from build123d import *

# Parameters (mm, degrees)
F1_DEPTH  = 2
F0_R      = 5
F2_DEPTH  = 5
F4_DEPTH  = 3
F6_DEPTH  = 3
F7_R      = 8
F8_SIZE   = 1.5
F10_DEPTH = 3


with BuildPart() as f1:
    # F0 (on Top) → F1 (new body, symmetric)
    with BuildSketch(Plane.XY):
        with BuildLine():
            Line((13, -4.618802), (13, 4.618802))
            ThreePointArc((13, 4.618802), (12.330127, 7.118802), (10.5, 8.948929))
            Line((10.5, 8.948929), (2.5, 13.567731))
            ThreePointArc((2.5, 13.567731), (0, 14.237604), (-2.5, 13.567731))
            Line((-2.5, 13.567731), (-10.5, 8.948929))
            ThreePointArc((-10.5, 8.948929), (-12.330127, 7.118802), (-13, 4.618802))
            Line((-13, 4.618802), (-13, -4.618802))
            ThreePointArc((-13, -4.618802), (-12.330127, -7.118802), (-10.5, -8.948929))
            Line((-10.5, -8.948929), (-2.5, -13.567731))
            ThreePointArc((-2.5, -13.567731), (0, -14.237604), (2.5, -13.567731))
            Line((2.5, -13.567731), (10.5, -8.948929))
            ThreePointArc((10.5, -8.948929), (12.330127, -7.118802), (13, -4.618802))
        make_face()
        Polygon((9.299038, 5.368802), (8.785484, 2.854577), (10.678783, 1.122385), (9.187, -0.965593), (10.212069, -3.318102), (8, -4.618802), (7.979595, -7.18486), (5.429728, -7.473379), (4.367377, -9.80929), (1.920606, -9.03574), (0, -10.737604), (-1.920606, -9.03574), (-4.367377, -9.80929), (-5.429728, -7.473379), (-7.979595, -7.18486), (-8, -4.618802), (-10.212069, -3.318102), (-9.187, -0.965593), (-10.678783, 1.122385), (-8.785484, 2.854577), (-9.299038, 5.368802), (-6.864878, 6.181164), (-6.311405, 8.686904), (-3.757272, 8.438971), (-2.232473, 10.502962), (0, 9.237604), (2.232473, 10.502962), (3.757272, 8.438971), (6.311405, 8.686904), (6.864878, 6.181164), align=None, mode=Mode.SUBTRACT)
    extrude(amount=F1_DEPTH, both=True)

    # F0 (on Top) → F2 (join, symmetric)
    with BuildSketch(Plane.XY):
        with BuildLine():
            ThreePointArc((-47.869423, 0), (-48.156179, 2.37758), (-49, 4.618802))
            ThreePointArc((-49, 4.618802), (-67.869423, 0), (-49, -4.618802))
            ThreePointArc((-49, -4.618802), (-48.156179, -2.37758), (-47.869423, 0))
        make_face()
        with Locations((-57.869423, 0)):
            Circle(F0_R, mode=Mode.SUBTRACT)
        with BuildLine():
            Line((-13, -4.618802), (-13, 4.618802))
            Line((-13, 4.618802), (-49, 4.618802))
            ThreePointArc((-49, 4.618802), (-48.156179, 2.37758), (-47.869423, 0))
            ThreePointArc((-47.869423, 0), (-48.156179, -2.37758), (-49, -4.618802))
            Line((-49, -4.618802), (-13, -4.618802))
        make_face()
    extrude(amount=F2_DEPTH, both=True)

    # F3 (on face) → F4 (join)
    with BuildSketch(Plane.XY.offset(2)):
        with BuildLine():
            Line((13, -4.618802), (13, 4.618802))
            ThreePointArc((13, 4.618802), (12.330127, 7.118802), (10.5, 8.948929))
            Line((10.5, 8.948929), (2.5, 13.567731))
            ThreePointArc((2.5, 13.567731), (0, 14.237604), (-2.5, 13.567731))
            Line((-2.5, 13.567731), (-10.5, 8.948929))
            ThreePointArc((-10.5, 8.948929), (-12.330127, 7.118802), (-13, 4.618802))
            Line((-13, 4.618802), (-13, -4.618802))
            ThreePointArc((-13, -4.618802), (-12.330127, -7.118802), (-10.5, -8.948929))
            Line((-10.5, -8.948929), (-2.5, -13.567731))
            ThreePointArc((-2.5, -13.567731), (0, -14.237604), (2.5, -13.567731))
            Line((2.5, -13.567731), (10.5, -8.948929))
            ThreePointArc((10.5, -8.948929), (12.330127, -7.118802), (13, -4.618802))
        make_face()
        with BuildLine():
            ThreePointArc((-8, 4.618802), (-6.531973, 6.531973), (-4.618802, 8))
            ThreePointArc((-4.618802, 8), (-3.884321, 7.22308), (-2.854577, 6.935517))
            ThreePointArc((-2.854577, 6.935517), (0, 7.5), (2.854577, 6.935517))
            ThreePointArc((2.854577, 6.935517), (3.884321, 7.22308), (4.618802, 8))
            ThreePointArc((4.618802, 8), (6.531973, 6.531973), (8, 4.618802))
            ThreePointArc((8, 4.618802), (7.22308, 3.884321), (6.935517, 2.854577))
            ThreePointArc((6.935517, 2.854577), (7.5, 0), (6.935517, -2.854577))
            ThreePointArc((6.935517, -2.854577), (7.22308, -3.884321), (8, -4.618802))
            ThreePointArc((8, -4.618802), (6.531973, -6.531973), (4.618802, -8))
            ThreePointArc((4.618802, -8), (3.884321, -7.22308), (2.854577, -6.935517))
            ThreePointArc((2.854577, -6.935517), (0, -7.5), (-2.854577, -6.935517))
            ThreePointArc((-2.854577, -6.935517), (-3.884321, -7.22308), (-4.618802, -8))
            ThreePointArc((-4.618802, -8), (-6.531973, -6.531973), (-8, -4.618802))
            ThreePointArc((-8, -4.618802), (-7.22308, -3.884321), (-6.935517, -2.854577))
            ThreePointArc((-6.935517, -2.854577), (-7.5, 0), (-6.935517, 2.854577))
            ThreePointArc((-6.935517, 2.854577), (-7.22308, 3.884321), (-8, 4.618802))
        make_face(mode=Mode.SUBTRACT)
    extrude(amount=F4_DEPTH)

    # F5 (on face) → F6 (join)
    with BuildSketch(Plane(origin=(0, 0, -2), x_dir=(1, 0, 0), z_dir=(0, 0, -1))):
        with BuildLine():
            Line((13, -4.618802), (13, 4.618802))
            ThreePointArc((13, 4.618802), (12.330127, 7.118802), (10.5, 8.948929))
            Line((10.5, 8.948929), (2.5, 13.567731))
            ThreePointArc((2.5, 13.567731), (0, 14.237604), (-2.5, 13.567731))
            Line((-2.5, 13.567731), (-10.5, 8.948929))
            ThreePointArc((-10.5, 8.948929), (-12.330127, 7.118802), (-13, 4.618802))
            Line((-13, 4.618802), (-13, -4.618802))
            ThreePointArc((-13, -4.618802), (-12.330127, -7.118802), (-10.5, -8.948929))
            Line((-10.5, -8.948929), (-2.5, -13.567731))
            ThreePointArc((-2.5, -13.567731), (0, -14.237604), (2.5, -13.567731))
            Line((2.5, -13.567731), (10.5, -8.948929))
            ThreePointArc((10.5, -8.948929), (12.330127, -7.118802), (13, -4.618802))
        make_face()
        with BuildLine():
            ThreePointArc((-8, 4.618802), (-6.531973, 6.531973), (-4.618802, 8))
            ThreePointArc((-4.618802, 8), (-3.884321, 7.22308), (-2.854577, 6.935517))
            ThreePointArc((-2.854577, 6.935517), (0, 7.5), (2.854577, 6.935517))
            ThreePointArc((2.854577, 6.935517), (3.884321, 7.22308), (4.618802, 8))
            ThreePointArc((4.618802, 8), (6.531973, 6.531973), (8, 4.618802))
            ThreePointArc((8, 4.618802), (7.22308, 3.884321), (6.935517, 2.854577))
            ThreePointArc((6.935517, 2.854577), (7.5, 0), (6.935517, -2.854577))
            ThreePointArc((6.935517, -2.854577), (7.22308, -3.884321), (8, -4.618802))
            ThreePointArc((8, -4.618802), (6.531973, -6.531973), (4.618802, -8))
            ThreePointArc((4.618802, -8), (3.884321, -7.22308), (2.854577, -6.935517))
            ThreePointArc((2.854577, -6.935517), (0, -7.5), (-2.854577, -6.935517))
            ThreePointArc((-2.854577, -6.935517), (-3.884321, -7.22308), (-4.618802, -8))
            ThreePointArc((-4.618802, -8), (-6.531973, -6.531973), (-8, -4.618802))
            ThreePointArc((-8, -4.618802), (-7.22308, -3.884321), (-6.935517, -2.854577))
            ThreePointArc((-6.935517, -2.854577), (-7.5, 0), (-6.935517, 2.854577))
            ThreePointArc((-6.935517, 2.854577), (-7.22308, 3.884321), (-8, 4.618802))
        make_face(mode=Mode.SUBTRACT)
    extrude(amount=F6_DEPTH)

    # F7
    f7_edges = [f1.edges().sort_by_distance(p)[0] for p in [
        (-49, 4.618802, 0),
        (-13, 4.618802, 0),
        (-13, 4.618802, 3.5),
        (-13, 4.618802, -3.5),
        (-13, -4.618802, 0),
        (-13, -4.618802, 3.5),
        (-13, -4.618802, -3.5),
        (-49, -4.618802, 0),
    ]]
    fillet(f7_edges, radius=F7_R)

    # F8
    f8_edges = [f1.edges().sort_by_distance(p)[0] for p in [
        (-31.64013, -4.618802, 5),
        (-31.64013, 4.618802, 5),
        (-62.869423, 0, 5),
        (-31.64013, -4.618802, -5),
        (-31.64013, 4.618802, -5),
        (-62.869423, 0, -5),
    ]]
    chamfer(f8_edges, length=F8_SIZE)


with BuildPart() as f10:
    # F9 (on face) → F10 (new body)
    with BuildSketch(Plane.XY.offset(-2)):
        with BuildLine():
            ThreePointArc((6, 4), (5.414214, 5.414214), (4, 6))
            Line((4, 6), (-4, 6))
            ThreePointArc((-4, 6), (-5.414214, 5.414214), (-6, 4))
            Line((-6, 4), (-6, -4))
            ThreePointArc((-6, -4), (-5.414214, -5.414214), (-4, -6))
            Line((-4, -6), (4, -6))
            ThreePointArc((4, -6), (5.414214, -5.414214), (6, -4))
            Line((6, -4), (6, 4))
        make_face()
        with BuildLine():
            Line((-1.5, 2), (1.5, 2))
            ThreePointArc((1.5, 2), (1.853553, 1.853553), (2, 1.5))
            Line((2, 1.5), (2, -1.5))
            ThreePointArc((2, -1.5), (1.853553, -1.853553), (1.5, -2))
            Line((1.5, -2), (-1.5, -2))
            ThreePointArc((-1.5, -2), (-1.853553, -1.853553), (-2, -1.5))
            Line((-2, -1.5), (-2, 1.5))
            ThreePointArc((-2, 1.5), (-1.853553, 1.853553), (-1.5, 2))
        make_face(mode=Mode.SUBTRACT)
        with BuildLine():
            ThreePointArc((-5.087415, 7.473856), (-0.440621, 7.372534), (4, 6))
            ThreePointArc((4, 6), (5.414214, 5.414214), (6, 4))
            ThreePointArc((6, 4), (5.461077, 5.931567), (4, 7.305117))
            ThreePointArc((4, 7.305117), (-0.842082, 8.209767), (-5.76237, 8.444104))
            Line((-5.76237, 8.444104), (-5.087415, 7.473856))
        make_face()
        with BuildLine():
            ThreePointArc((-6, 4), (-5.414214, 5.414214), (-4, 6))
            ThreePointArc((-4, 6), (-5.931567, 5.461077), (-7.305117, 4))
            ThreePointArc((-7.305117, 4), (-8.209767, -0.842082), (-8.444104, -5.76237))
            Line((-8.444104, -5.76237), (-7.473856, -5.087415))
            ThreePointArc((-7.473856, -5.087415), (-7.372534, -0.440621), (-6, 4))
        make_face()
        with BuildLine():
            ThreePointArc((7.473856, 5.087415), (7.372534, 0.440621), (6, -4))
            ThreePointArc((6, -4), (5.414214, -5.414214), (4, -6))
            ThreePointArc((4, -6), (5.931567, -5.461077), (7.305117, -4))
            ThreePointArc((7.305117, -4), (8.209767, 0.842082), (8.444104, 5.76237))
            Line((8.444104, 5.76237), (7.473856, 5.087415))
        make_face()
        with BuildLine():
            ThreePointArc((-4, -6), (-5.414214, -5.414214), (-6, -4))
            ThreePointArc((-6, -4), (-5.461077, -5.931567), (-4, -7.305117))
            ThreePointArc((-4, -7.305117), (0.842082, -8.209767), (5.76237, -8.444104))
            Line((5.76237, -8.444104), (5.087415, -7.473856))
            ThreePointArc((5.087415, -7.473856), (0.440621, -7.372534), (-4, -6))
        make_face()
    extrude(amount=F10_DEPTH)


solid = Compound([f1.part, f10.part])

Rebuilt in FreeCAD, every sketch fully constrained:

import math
import FreeCAD as App
import Part
import Sketcher
from FreeCAD import Vector
Q = App.Units.Quantity


def edges_at(feature, points):
    """Names of the edges that pass closest to the given points."""
    edges = feature.Shape.Edges
    near = lambda p: min(range(len(edges)), key=lambda i: edges[i].distToShape(Part.Vertex(*p))[0])
    return sorted({f"Edge{near(p) + 1}" for p in points})

doc = App.newDocument("Part")
params = doc.addObject("Spreadsheet::Sheet", "Params")
for row, (alias, value) in enumerate([
    ("sketch1_radius", "5 mm"),
    ("pad1_length", "4 mm"),
    ("sketch2_diameter", "10 mm"),
    ("sketch2_radius", "10 mm"),
    ("sketch2_width", "36 mm"),
    ("pad2_length", "10 mm"),
    ("sketch3_radius", "5 mm"),
    ("sketch3_radius2", "1.999999 mm"),
    ("pad3_length", "3 mm"),
    ("sketch4_radius", "5 mm"),
    ("sketch4_radius2", "1.999999 mm"),
    ("pad4_length", "3 mm"),
    ("fillet_radius", "8 mm"),
    ("chamfer_size", "1.5 mm"),
    ("sketch5_radius", "0.500001 mm"),
    ("sketch5_width", "8 mm"),
    ("sketch5_width2", "3 mm"),
    ("pad5_length", "3 mm"),
], start=1):
    params.set(f"A{row}", alias)
    params.set(f"B{row}", "=" + value)
    params.setAlias(f"B{row}", alias)

body = doc.addObject("PartDesign::Body", "Body")

# Sketch on XY plane
sketch1 = doc.addObject("Sketcher::SketchObject", "Sketch")
body.addObject(sketch1)
sketch1.AttachmentSupport = (doc.XY_Plane, [""])
sketch1.MapMode = "FlatFace"
sketch1.addGeometry(Part.LineSegment(Vector(13, -4.6, 0), Vector(13, 4.6, 0)), False)
sketch1.addGeometry(Part.ArcOfCircle(Part.Circle(Vector(8, 4.6, 0), Vector(0, 0, 1), 5), math.radians(0), math.radians(60)), False)
sketch1.addGeometry(Part.LineSegment(Vector(10.5, 8.9, 0), Vector(2.5, 13.6, 0)), False)
sketch1.addGeometry(Part.ArcOfCircle(Part.Circle(Vector(0, 9.2, 0), Vector(0, 0, 1), 5), math.radians(60), math.radians(120)), False)
sketch1.addGeometry(Part.LineSegment(Vector(-2.5, 13.6, 0), Vector(-10.5, 8.9, 0)), False)
sketch1.addGeometry(Part.ArcOfCircle(Part.Circle(Vector(-8, 4.6, 0), Vector(0, 0, 1), 5), math.radians(120), math.radians(180)), False)
sketch1.addGeometry(Part.LineSegment(Vector(-13, 4.6, 0), Vector(-13, -4.6, 0)), False)
sketch1.addGeometry(Part.ArcOfCircle(Part.Circle(Vector(-8, -4.6, 0), Vector(0, 0, 1), 5), math.radians(-180), math.radians(-120)), False)
sketch1.addGeometry(Part.LineSegment(Vector(-10.5, -8.9, 0), Vector(-2.5, -13.6, 0)), False)
sketch1.addGeometry(Part.ArcOfCircle(Part.Circle(Vector(0, -9.2, 0), Vector(0, 0, 1), 5), math.radians(-120), math.radians(-60)), False)
sketch1.addGeometry(Part.LineSegment(Vector(2.5, -13.6, 0), Vector(10.5, -8.9, 0)), False)
sketch1.addGeometry(Part.ArcOfCircle(Part.Circle(Vector(8, -4.6, 0), Vector(0, 0, 1), 5), math.radians(-60), math.radians(0)), False)
sketch1.addGeometry(Part.LineSegment(Vector(6.9, 6.2, 0), Vector(9.3, 5.4, 0)), False)
sketch1.addGeometry(Part.LineSegment(Vector(9.3, 5.4, 0), Vector(8.8, 2.9, 0)), False)
sketch1.addGeometry(Part.LineSegment(Vector(8.8, 2.9, 0), Vector(10.7, 1.1, 0)), False)
sketch1.addGeometry(Part.LineSegment(Vector(10.7, 1.1, 0), Vector(9.2, -1, 0)), False)
sketch1.addGeometry(Part.LineSegment(Vector(9.2, -1, 0), Vector(10.2, -3.3, 0)), False)
sketch1.addGeometry(Part.LineSegment(Vector(10.2, -3.3, 0), Vector(8, -4.6, 0)), False)
sketch1.addGeometry(Part.LineSegment(Vector(8, -4.6, 0), Vector(8, -7.2, 0)), False)
sketch1.addGeometry(Part.LineSegment(Vector(8, -7.2, 0), Vector(5.4, -7.5, 0)), False)
sketch1.addGeometry(Part.LineSegment(Vector(5.4, -7.5, 0), Vector(4.4, -9.8, 0)), False)
sketch1.addGeometry(Part.LineSegment(Vector(4.4, -9.8, 0), Vector(1.9, -9, 0)), False)
sketch1.addGeometry(Part.LineSegment(Vector(1.9, -9, 0), Vector(0, -10.7, 0)), False)
sketch1.addGeometry(Part.LineSegment(Vector(0, -10.7, 0), Vector(-1.9, -9, 0)), False)
sketch1.addGeometry(Part.LineSegment(Vector(-1.9, -9, 0), Vector(-4.4, -9.8, 0)), False)
sketch1.addGeometry(Part.LineSegment(Vector(-4.4, -9.8, 0), Vector(-5.4, -7.5, 0)), False)
sketch1.addGeometry(Part.LineSegment(Vector(-5.4, -7.5, 0), Vector(-8, -7.2, 0)), False)
sketch1.addGeometry(Part.LineSegment(Vector(-8, -7.2, 0), Vector(-8, -4.6, 0)), False)
sketch1.addGeometry(Part.LineSegment(Vector(-8, -4.6, 0), Vector(-10.2, -3.3, 0)), False)
sketch1.addGeometry(Part.LineSegment(Vector(-10.2, -3.3, 0), Vector(-9.2, -1, 0)), False)
sketch1.addGeometry(Part.LineSegment(Vector(-9.2, -1, 0), Vector(-10.7, 1.1, 0)), False)
sketch1.addGeometry(Part.LineSegment(Vector(-10.7, 1.1, 0), Vector(-8.8, 2.9, 0)), False)
sketch1.addGeometry(Part.LineSegment(Vector(-8.8, 2.9, 0), Vector(-9.3, 5.4, 0)), False)
sketch1.addGeometry(Part.LineSegment(Vector(-9.3, 5.4, 0), Vector(-6.9, 6.2, 0)), False)
sketch1.addGeometry(Part.LineSegment(Vector(-6.9, 6.2, 0), Vector(-6.3, 8.7, 0)), False)
sketch1.addGeometry(Part.LineSegment(Vector(-6.3, 8.7, 0), Vector(-3.8, 8.4, 0)), False)
sketch1.addGeometry(Part.LineSegment(Vector(-3.8, 8.4, 0), Vector(-2.2, 10.5, 0)), False)
sketch1.addGeometry(Part.LineSegment(Vector(-2.2, 10.5, 0), Vector(0, 9.2, 0)), False)
sketch1.addGeometry(Part.LineSegment(Vector(0, 9.2, 0), Vector(2.2, 10.5, 0)), False)
sketch1.addGeometry(Part.LineSegment(Vector(2.2, 10.5, 0), Vector(3.8, 8.4, 0)), False)
sketch1.addGeometry(Part.LineSegment(Vector(3.8, 8.4, 0), Vector(6.3, 8.7, 0)), False)
sketch1.addGeometry(Part.LineSegment(Vector(6.3, 8.7, 0), Vector(6.9, 6.2, 0)), False)
sketch1.addConstraint(Sketcher.Constraint("Tangent", 0, 2, 1, 1))
sketch1.addConstraint(Sketcher.Constraint("Tangent", 1, 2, 2, 1))
sketch1.addConstraint(Sketcher.Constraint("Tangent", 2, 2, 3, 1))
sketch1.addConstraint(Sketcher.Constraint("Tangent", 3, 2, 4, 1))
sketch1.addConstraint(Sketcher.Constraint("Tangent", 4, 2, 5, 1))
sketch1.addConstraint(Sketcher.Constraint("Tangent", 5, 2, 6, 1))
sketch1.addConstraint(Sketcher.Constraint("Tangent", 6, 2, 7, 1))
sketch1.addConstraint(Sketcher.Constraint("Tangent", 7, 2, 8, 1))
sketch1.addConstraint(Sketcher.Constraint("Tangent", 8, 2, 9, 1))
sketch1.addConstraint(Sketcher.Constraint("Tangent", 9, 2, 10, 1))
sketch1.addConstraint(Sketcher.Constraint("Tangent", 10, 2, 11, 1))
sketch1.addConstraint(Sketcher.Constraint("Tangent", 11, 2, 0, 1))
sketch1.addConstraint(Sketcher.Constraint("Coincident", 12, 2, 13, 1))
sketch1.addConstraint(Sketcher.Constraint("Coincident", 13, 2, 14, 1))
sketch1.addConstraint(Sketcher.Constraint("Coincident", 14, 2, 15, 1))
sketch1.addConstraint(Sketcher.Constraint("Coincident", 15, 2, 16, 1))
sketch1.addConstraint(Sketcher.Constraint("Coincident", 16, 2, 17, 1))
sketch1.addConstraint(Sketcher.Constraint("Coincident", 17, 2, 18, 1))
sketch1.addConstraint(Sketcher.Constraint("Coincident", 18, 2, 19, 1))
sketch1.addConstraint(Sketcher.Constraint("Coincident", 19, 2, 20, 1))
sketch1.addConstraint(Sketcher.Constraint("Coincident", 20, 2, 21, 1))
sketch1.addConstraint(Sketcher.Constraint("Coincident", 21, 2, 22, 1))
sketch1.addConstraint(Sketcher.Constraint("Coincident", 22, 2, 23, 1))
sketch1.addConstraint(Sketcher.Constraint("Coincident", 23, 2, 24, 1))
sketch1.addConstraint(Sketcher.Constraint("Coincident", 24, 2, 25, 1))
sketch1.addConstraint(Sketcher.Constraint("Coincident", 25, 2, 26, 1))
sketch1.addConstraint(Sketcher.Constraint("Coincident", 26, 2, 27, 1))
sketch1.addConstraint(Sketcher.Constraint("Coincident", 27, 2, 28, 1))
sketch1.addConstraint(Sketcher.Constraint("Coincident", 28, 2, 29, 1))
sketch1.addConstraint(Sketcher.Constraint("Coincident", 29, 2, 30, 1))
sketch1.addConstraint(Sketcher.Constraint("Coincident", 30, 2, 31, 1))
sketch1.addConstraint(Sketcher.Constraint("Coincident", 31, 2, 32, 1))
sketch1.addConstraint(Sketcher.Constraint("Coincident", 32, 2, 33, 1))
sketch1.addConstraint(Sketcher.Constraint("Coincident", 33, 2, 34, 1))
sketch1.addConstraint(Sketcher.Constraint("Coincident", 34, 2, 35, 1))
sketch1.addConstraint(Sketcher.Constraint("Coincident", 35, 2, 36, 1))
sketch1.addConstraint(Sketcher.Constraint("Coincident", 36, 2, 37, 1))
sketch1.addConstraint(Sketcher.Constraint("Coincident", 37, 2, 38, 1))
sketch1.addConstraint(Sketcher.Constraint("Coincident", 38, 2, 39, 1))
sketch1.addConstraint(Sketcher.Constraint("Coincident", 39, 2, 40, 1))
sketch1.addConstraint(Sketcher.Constraint("Coincident", 40, 2, 41, 1))
sketch1.addConstraint(Sketcher.Constraint("Coincident", 41, 2, 12, 1))
sketch1.addConstraint(Sketcher.Constraint("Vertical", 0))
sketch1.addConstraint(Sketcher.Constraint("Vertical", 6))
sketch1.addConstraint(Sketcher.Constraint("Coincident", 17, 2, 11, 3))
sketch1.addConstraint(Sketcher.Constraint("Coincident", 27, 2, 7, 3))
sketch1.addConstraint(Sketcher.Constraint("Coincident", 37, 2, 3, 3))
sketch1.addConstraint(Sketcher.Constraint("Equal", 1, 3))
sketch1.addConstraint(Sketcher.Constraint("Equal", 3, 5))
sketch1.addConstraint(Sketcher.Constraint("Equal", 5, 7))
sketch1.addConstraint(Sketcher.Constraint("Equal", 7, 9))
sketch1.addConstraint(Sketcher.Constraint("Equal", 9, 11))
sketch1.addConstraint(Sketcher.Constraint("Symmetric", 1, 3, 7, 3, -1, 1))
sketch1.addConstraint(Sketcher.Constraint("Symmetric", 3, 3, 9, 3, -1, 1))
sketch1.addConstraint(Sketcher.Constraint("Symmetric", 2, 2, 3, 2, -2))
sketch1.addConstraint(Sketcher.Constraint("Symmetric", 21, 2, 23, 2, -2))
sketch1.addConstraint(Sketcher.Constraint("Symmetric", 20, 2, 24, 2, -2))
sketch1.addConstraint(Sketcher.Constraint("Symmetric", 19, 2, 25, 2, -2))
sketch1.addConstraint(Sketcher.Constraint("Symmetric", 18, 2, 26, 2, -2))
sketch1.addConstraint(Sketcher.Constraint("Symmetric", 16, 2, 28, 2, -2))
sketch1.addConstraint(Sketcher.Constraint("Symmetric", 15, 2, 29, 2, -2))
sketch1.addConstraint(Sketcher.Constraint("Symmetric", 14, 2, 30, 2, -2))
sketch1.addConstraint(Sketcher.Constraint("Symmetric", 13, 2, 31, 2, -2))
sketch1.addConstraint(Sketcher.Constraint("Symmetric", 12, 2, 32, 2, -2))
sketch1.addConstraint(Sketcher.Constraint("Symmetric", 36, 2, 38, 2, -2))
sketch1.addConstraint(Sketcher.Constraint("Symmetric", 35, 2, 39, 2, -2))
sketch1.addConstraint(Sketcher.Constraint("Symmetric", 34, 2, 40, 2, -2))
sketch1.addConstraint(Sketcher.Constraint("Symmetric", 33, 2, 41, 2, -2))
sketch1.addConstraint(Sketcher.Constraint("PointOnObject", 22, 2, -2))
sketch1.addConstraint(Sketcher.Constraint("Parallel", 4, 10))
sketch1.addConstraint(Sketcher.Constraint("Equal", 12, 13))
sketch1.addConstraint(Sketcher.Constraint("Equal", 13, 14))
sketch1.addConstraint(Sketcher.Constraint("Equal", 14, 15))
sketch1.addConstraint(Sketcher.Constraint("Equal", 15, 16))
sketch1.addConstraint(Sketcher.Constraint("Equal", 16, 17))
sketch1.addConstraint(Sketcher.Constraint("Equal", 17, 18))
sketch1.addConstraint(Sketcher.Constraint("Equal", 18, 19))
sketch1.addConstraint(Sketcher.Constraint("Equal", 19, 20))
sketch1.addConstraint(Sketcher.Constraint("Equal", 20, 21))
sketch1.addConstraint(Sketcher.Constraint("Equal", 21, 22))
sketch1.addConstraint(Sketcher.Constraint("Equal", 33, 34))
sketch1.addConstraint(Sketcher.Constraint("Equal", 34, 35))
sketch1.addConstraint(Sketcher.Constraint("Equal", 35, 36))
sketch1.addConstraint(Sketcher.Constraint("Equal", 36, 37))
sketch1.addConstraint(Sketcher.Constraint("Radius", 1, Q("5 mm")))
sketch1.addConstraint(Sketcher.Constraint("Angle", 2, Q("150.000001 deg")))
sketch1.addConstraint(Sketcher.Constraint("DistanceX", -1, 1, 1, 3, Q("8 mm")))
sketch1.addConstraint(Sketcher.Constraint("DistanceY", 22, 2, 9, 3, Q("1.5 mm")))
sketch1.addConstraint(Sketcher.Constraint("DistanceY", 1, 3, 12, 2, Q("0.75 mm")))
sketch1.addConstraint(Sketcher.Constraint("DistanceX", -1, 1, 15, 2, Q("9.187 mm")))
sketch1.addConstraint(Sketcher.Constraint("DistanceY", -1, 1, 1, 3, Q("4.618802 mm")))
sketch1.addConstraint(Sketcher.Constraint("DistanceX", 13, 2, 14, 2, Q("1.893299 mm")))
sketch1.addConstraint(Sketcher.Constraint("DistanceY", 11, 3, 16, 2, Q("1.3007 mm")))
sketch1.addConstraint(Sketcher.Constraint("DistanceX", 35, 2, 36, 2, Q("1.524799 mm")))
sketch1.addConstraint(Sketcher.Constraint("Distance", 12, Q("2.566139 mm")))
sketch1.addConstraint(Sketcher.Constraint("DistanceY", 18, 2, -1, 1, Q("7.18486 mm")))
sketch1.addConstraint(Sketcher.Constraint("DistanceY", 19, 2, -1, 1, Q("7.473379 mm")))
sketch1.addConstraint(Sketcher.Constraint("DistanceY", 20, 2, -1, 1, Q("9.80929 mm")))
sketch1.addConstraint(Sketcher.Constraint("DistanceX", 35, 2, -1, 1, Q("3.757272 mm")))
sketch1.addConstraint(Sketcher.Constraint("DistanceX", 1, 3, 12, 2, Q("1.299038 mm")))
sketch1.addConstraint(Sketcher.Constraint("DistanceX", 5, 3, 33, 2, Q("1.135122 mm")))
sketch1.setExpression("Constraints[84]", "Params.sketch1_radius")
pad1 = doc.addObject("PartDesign::Pad", "Pad")
body.addObject(pad1)
pad1.Profile = sketch1
pad1.setExpression("Length", "Params.pad1_length")
pad1.Midplane = True

# Sketch on XY plane
sketch2 = doc.addObject("Sketcher::SketchObject", "Sketch001")
body.addObject(sketch2)
sketch2.AttachmentSupport = (doc.XY_Plane, [""])
sketch2.MapMode = "FlatFace"
sketch2.addGeometry(Part.ArcOfCircle(Part.Circle(Vector(-58, 0, 0), Vector(0, 0, 1), 10), math.radians(28), math.radians(332)), False)
sketch2.addGeometry(Part.LineSegment(Vector(-49, -5, 0), Vector(-13, -5, 0)), False)
sketch2.addGeometry(Part.LineSegment(Vector(-13, -5, 0), Vector(-13, 5, 0)), False)
sketch2.addGeometry(Part.LineSegment(Vector(-13, 5, 0), Vector(-49, 5, 0)), False)
sketch2.addGeometry(Part.Circle(Vector(-58, 0, 0), Vector(0, 0, 1), 5), False)
sketch2.addConstraint(Sketcher.Constraint("Coincident", 0, 2, 1, 1))
sketch2.addConstraint(Sketcher.Constraint("Coincident", 1, 2, 2, 1))
sketch2.addConstraint(Sketcher.Constraint("Coincident", 2, 2, 3, 1))
sketch2.addConstraint(Sketcher.Constraint("Coincident", 3, 2, 0, 1))
sketch2.addConstraint(Sketcher.Constraint("Horizontal", 1))
sketch2.addConstraint(Sketcher.Constraint("Vertical", 2))
sketch2.addConstraint(Sketcher.Constraint("Horizontal", 3))
sketch2.addConstraint(Sketcher.Constraint("Coincident", 4, 3, 0, 3))
sketch2.addConstraint(Sketcher.Constraint("Symmetric", 0, 2, 3, 2, -1))
sketch2.addConstraint(Sketcher.Constraint("Diameter", 4, Q("10 mm")))
sketch2.addConstraint(Sketcher.Constraint("Radius", 0, Q("10 mm")))
sketch2.addConstraint(Sketcher.Constraint("DistanceX", 1, 1, 1, 2, Q("36 mm")))
sketch2.addConstraint(Sketcher.Constraint("DistanceX", 0, 2, -1, 1, Q("49 mm")))
sketch2.addConstraint(Sketcher.Constraint("DistanceY", 0, 2, -1, 1, Q("4.618802 mm")))
sketch2.setExpression("Constraints[9]", "Params.sketch2_diameter")
sketch2.setExpression("Constraints[10]", "Params.sketch2_radius")
sketch2.setExpression("Constraints[11]", "Params.sketch2_width")
pad2 = doc.addObject("PartDesign::Pad", "Pad001")
body.addObject(pad2)
pad2.Profile = sketch2
pad2.setExpression("Length", "Params.pad2_length")
pad2.Midplane = True

# Sketch on XY plane
sketch3 = doc.addObject("Sketcher::SketchObject", "Sketch002")
body.addObject(sketch3)
sketch3.AttachmentSupport = (doc.XY_Plane, [""])
sketch3.MapMode = "FlatFace"
sketch3.AttachmentOffset = App.Placement(Vector(0, 0, 2), App.Rotation())
sketch3.addGeometry(Part.LineSegment(Vector(13, -4.6, 0), Vector(13, 4.6, 0)), False)
sketch3.addGeometry(Part.ArcOfCircle(Part.Circle(Vector(8, 4.6, 0), Vector(0, 0, 1), 5), math.radians(0), math.radians(60)), False)
sketch3.addGeometry(Part.LineSegment(Vector(10.5, 8.9, 0), Vector(2.5, 13.6, 0)), False)
sketch3.addGeometry(Part.ArcOfCircle(Part.Circle(Vector(0, 9.2, 0), Vector(0, 0, 1), 5), math.radians(60), math.radians(120)), False)
sketch3.addGeometry(Part.LineSegment(Vector(-2.5, 13.6, 0), Vector(-10.5, 8.9, 0)), False)
sketch3.addGeometry(Part.ArcOfCircle(Part.Circle(Vector(-8, 4.6, 0), Vector(0, 0, 1), 5), math.radians(120), math.radians(180)), False)
sketch3.addGeometry(Part.LineSegment(Vector(-13, 4.6, 0), Vector(-13, -4.6, 0)), False)
sketch3.addGeometry(Part.ArcOfCircle(Part.Circle(Vector(-8, -4.6, 0), Vector(0, 0, 1), 5), math.radians(-180), math.radians(-120)), False)
sketch3.addGeometry(Part.LineSegment(Vector(-10.5, -8.9, 0), Vector(-2.5, -13.6, 0)), False)
sketch3.addGeometry(Part.ArcOfCircle(Part.Circle(Vector(0, -9.2, 0), Vector(0, 0, 1), 5), math.radians(-120), math.radians(-60)), False)
sketch3.addGeometry(Part.LineSegment(Vector(2.5, -13.6, 0), Vector(10.5, -8.9, 0)), False)
sketch3.addGeometry(Part.ArcOfCircle(Part.Circle(Vector(8, -4.6, 0), Vector(0, 0, 1), 5), math.radians(-60), math.radians(0)), False)
sketch3.addGeometry(Part.ArcOfCircle(Part.Circle(Vector(-8.9, 2.9, 0), Vector(0, 0, 1), 2), math.radians(0), math.radians(62)), False)
sketch3.addGeometry(Part.ArcOfCircle(Part.Circle(Vector(0, 0, 0), Vector(0, 0, 1), 9.2), math.radians(120), math.radians(150)), False)
sketch3.addGeometry(Part.ArcOfCircle(Part.Circle(Vector(-2.9, 8.9, 0), Vector(0, 0, 1), 2), math.radians(-152), math.radians(-90)), False)
sketch3.addGeometry(Part.ArcOfCircle(Part.Circle(Vector(0, 0, 0), Vector(0, 0, 1), 7.5), math.radians(68), math.radians(112)), False)
sketch3.addGeometry(Part.ArcOfCircle(Part.Circle(Vector(2.9, 8.9, 0), Vector(0, 0, 1), 2), math.radians(-90), math.radians(-28)), False)
sketch3.addGeometry(Part.ArcOfCircle(Part.Circle(Vector(0, 0, 0), Vector(0, 0, 1), 9.2), math.radians(30), math.radians(60)), False)
sketch3.addGeometry(Part.ArcOfCircle(Part.Circle(Vector(8.9, 2.9, 0), Vector(0, 0, 1), 2), math.radians(118), math.radians(180)), False)
sketch3.addGeometry(Part.ArcOfCircle(Part.Circle(Vector(0, 0, 0), Vector(0, 0, 1), 7.5), math.radians(-22), math.radians(22)), False)
sketch3.addGeometry(Part.ArcOfCircle(Part.Circle(Vector(8.9, -2.9, 0), Vector(0, 0, 1), 2), math.radians(-180), math.radians(-118)), False)
sketch3.addGeometry(Part.ArcOfCircle(Part.Circle(Vector(0, 0, 0), Vector(0, 0, 1), 9.2), math.radians(-60), math.radians(-30)), False)
sketch3.addGeometry(Part.ArcOfCircle(Part.Circle(Vector(2.9, -8.9, 0), Vector(0, 0, 1), 2), math.radians(28), math.radians(90)), False)
sketch3.addGeometry(Part.ArcOfCircle(Part.Circle(Vector(0, 0, 0), Vector(0, 0, 1), 7.5), math.radians(-112), math.radians(-68)), False)
sketch3.addGeometry(Part.ArcOfCircle(Part.Circle(Vector(-2.9, -8.9, 0), Vector(0, 0, 1), 2), math.radians(90), math.radians(152)), False)
sketch3.addGeometry(Part.ArcOfCircle(Part.Circle(Vector(0, 0, 0), Vector(0, 0, 1), 9.2), math.radians(-150), math.radians(-120)), False)
sketch3.addGeometry(Part.ArcOfCircle(Part.Circle(Vector(-8.9, -2.9, 0), Vector(0, 0, 1), 2), math.radians(-62), math.radians(0)), False)
sketch3.addGeometry(Part.ArcOfCircle(Part.Circle(Vector(0, 0, 0), Vector(0, 0, 1), 7.5), math.radians(158), math.radians(202)), False)
sketch3.addConstraint(Sketcher.Constraint("Tangent", 0, 2, 1, 1))
sketch3.addConstraint(Sketcher.Constraint("Tangent", 1, 2, 2, 1))
sketch3.addConstraint(Sketcher.Constraint("Tangent", 2, 2, 3, 1))
sketch3.addConstraint(Sketcher.Constraint("Tangent", 3, 2, 4, 1))
sketch3.addConstraint(Sketcher.Constraint("Tangent", 4, 2, 5, 1))
sketch3.addConstraint(Sketcher.Constraint("Tangent", 5, 2, 6, 1))
sketch3.addConstraint(Sketcher.Constraint("Tangent", 6, 2, 7, 1))
sketch3.addConstraint(Sketcher.Constraint("Tangent", 7, 2, 8, 1))
sketch3.addConstraint(Sketcher.Constraint("Tangent", 8, 2, 9, 1))
sketch3.addConstraint(Sketcher.Constraint("Tangent", 9, 2, 10, 1))
sketch3.addConstraint(Sketcher.Constraint("Tangent", 10, 2, 11, 1))
sketch3.addConstraint(Sketcher.Constraint("Tangent", 11, 2, 0, 1))
sketch3.addConstraint(Sketcher.Constraint("Coincident", 12, 2, 13, 2))
sketch3.addConstraint(Sketcher.Constraint("Coincident", 13, 1, 14, 1))
sketch3.addConstraint(Sketcher.Constraint("Coincident", 14, 2, 15, 2))
sketch3.addConstraint(Sketcher.Constraint("Coincident", 15, 1, 16, 1))
sketch3.addConstraint(Sketcher.Constraint("Coincident", 16, 2, 17, 2))
sketch3.addConstraint(Sketcher.Constraint("Coincident", 17, 1, 18, 1))
sketch3.addConstraint(Sketcher.Constraint("Coincident", 18, 2, 19, 2))
sketch3.addConstraint(Sketcher.Constraint("Coincident", 19, 1, 20, 1))
sketch3.addConstraint(Sketcher.Constraint("Coincident", 20, 2, 21, 2))
sketch3.addConstraint(Sketcher.Constraint("Coincident", 21, 1, 22, 1))
sketch3.addConstraint(Sketcher.Constraint("Coincident", 22, 2, 23, 2))
sketch3.addConstraint(Sketcher.Constraint("Coincident", 23, 1, 24, 1))
sketch3.addConstraint(Sketcher.Constraint("Coincident", 24, 2, 25, 2))
sketch3.addConstraint(Sketcher.Constraint("Coincident", 25, 1, 26, 1))
sketch3.addConstraint(Sketcher.Constraint("Coincident", 26, 2, 27, 2))
sketch3.addConstraint(Sketcher.Constraint("Coincident", 27, 1, 12, 1))
sketch3.addConstraint(Sketcher.Constraint("Vertical", 0))
sketch3.addConstraint(Sketcher.Constraint("Vertical", 6))
sketch3.addConstraint(Sketcher.Constraint("Coincident", 15, 3, -1, 1))
sketch3.addConstraint(Sketcher.Constraint("Coincident", 19, 3, -1, 1))
sketch3.addConstraint(Sketcher.Constraint("Coincident", 23, 3, -1, 1))
sketch3.addConstraint(Sketcher.Constraint("Coincident", 27, 3, -1, 1))
sketch3.addConstraint(Sketcher.Constraint("Coincident", 12, 2, 5, 3))
sketch3.addConstraint(Sketcher.Constraint("Coincident", 17, 1, 1, 3))
sketch3.addConstraint(Sketcher.Constraint("Coincident", 20, 2, 11, 3))
sketch3.addConstraint(Sketcher.Constraint("Coincident", 25, 1, 7, 3))
sketch3.addConstraint(Sketcher.Constraint("Equal", 1, 3))
sketch3.addConstraint(Sketcher.Constraint("Equal", 3, 5))
sketch3.addConstraint(Sketcher.Constraint("Equal", 5, 7))
sketch3.addConstraint(Sketcher.Constraint("Equal", 7, 9))
sketch3.addConstraint(Sketcher.Constraint("Equal", 9, 11))
sketch3.addConstraint(Sketcher.Constraint("Equal", 12, 14))
sketch3.addConstraint(Sketcher.Constraint("Equal", 14, 16))
sketch3.addConstraint(Sketcher.Constraint("Equal", 13, 17))
sketch3.addConstraint(Sketcher.Constraint("Equal", 16, 18))
sketch3.addConstraint(Sketcher.Constraint("Equal", 15, 19))
sketch3.addConstraint(Sketcher.Constraint("Equal", 18, 20))
sketch3.addConstraint(Sketcher.Constraint("Equal", 17, 21))
sketch3.addConstraint(Sketcher.Constraint("Equal", 20, 22))
sketch3.addConstraint(Sketcher.Constraint("Equal", 19, 23))
sketch3.addConstraint(Sketcher.Constraint("Equal", 22, 24))
sketch3.addConstraint(Sketcher.Constraint("Equal", 21, 25))
sketch3.addConstraint(Sketcher.Constraint("Equal", 24, 26))
sketch3.addConstraint(Sketcher.Constraint("Equal", 23, 27))
sketch3.addConstraint(Sketcher.Constraint("Symmetric", 1, 3, 7, 3, -1, 1))
sketch3.addConstraint(Sketcher.Constraint("Symmetric", 3, 3, 9, 3, -1, 1))
sketch3.addConstraint(Sketcher.Constraint("Symmetric", 12, 3, 20, 3, -1, 1))
sketch3.addConstraint(Sketcher.Constraint("Symmetric", 14, 3, 22, 3, -1, 1))
sketch3.addConstraint(Sketcher.Constraint("Symmetric", 16, 3, 24, 3, -1, 1))
sketch3.addConstraint(Sketcher.Constraint("Symmetric", 14, 3, 16, 3, -2))
sketch3.addConstraint(Sketcher.Constraint("Symmetric", 13, 3, 17, 3, -2))
sketch3.addConstraint(Sketcher.Constraint("PointOnObject", 3, 3, -2))
sketch3.addConstraint(Sketcher.Constraint("Horizontal", 12, 3, 18, 3))
sketch3.addConstraint(Sketcher.Constraint("Horizontal", 21, 3, 25, 3))
sketch3.addConstraint(Sketcher.Constraint("Horizontal", 20, 3, 26, 3))
sketch3.addConstraint(Sketcher.Constraint("Vertical", 17, 3, 21, 3))
sketch3.addConstraint(Sketcher.Constraint("Radius", 1, Q("5 mm")))
sketch3.addConstraint(Sketcher.Constraint("Radius", 12, Q("1.999999 mm")))
sketch3.addConstraint(Sketcher.Constraint("Angle", 2, Q("150.000001 deg")))
sketch3.addConstraint(Sketcher.Constraint("DistanceX", -1, 1, 1, 3, Q("8 mm")))
sketch3.addConstraint(Sketcher.Constraint("DistanceY", -1, 1, 13, 1, Q("8 mm")))
sketch3.addConstraint(Sketcher.Constraint("Radius", 13, Q("9.237588 mm")))
sketch3.addConstraint(Sketcher.Constraint("Radius", 15, Q("7.500005 mm")))
sketch3.addConstraint(Sketcher.Constraint("DistanceY", -1, 1, 1, 3, Q("4.618802 mm")))
sketch3.addConstraint(Sketcher.Constraint("DistanceX", -1, 1, 16, 2, Q("4.618802 mm")))
sketch3.addConstraint(Sketcher.Constraint("DistanceY", 13, 3, 14, 3, Q("8.935501 mm")))
sketch3.addConstraint(Sketcher.Constraint("DistanceX", 17, 3, 18, 3, Q("8.935501 mm")))
sketch3.setExpression("Constraints[68]", "Params.sketch3_radius")
sketch3.setExpression("Constraints[69]", "Params.sketch3_radius2")
pad3 = doc.addObject("PartDesign::Pad", "Pad002")
body.addObject(pad3)
pad3.Profile = sketch3
pad3.setExpression("Length", "Params.pad3_length")

# Sketch on XY plane
sketch4 = doc.addObject("Sketcher::SketchObject", "Sketch003")
body.addObject(sketch4)
sketch4.AttachmentSupport = (doc.XY_Plane, [""])
sketch4.MapMode = "FlatFace"
sketch4.AttachmentOffset = App.Placement(Vector(0, 0, -2), App.Rotation())
sketch4.addGeometry(Part.LineSegment(Vector(13, 4.6, 0), Vector(13, -4.6, 0)), False)
sketch4.addGeometry(Part.ArcOfCircle(Part.Circle(Vector(8, -4.6, 0), Vector(0, 0, 1), 5), math.radians(-60), math.radians(0)), False)
sketch4.addGeometry(Part.LineSegment(Vector(10.5, -8.9, 0), Vector(2.5, -13.6, 0)), False)
sketch4.addGeometry(Part.ArcOfCircle(Part.Circle(Vector(0, -9.2, 0), Vector(0, 0, 1), 5), math.radians(-120), math.radians(-60)), False)
sketch4.addGeometry(Part.LineSegment(Vector(-2.5, -13.6, 0), Vector(-10.5, -8.9, 0)), False)
sketch4.addGeometry(Part.ArcOfCircle(Part.Circle(Vector(-8, -4.6, 0), Vector(0, 0, 1), 5), math.radians(-180), math.radians(-120)), False)
sketch4.addGeometry(Part.LineSegment(Vector(-13, -4.6, 0), Vector(-13, 4.6, 0)), False)
sketch4.addGeometry(Part.ArcOfCircle(Part.Circle(Vector(-8, 4.6, 0), Vector(0, 0, 1), 5), math.radians(120), math.radians(180)), False)
sketch4.addGeometry(Part.LineSegment(Vector(-10.5, 8.9, 0), Vector(-2.5, 13.6, 0)), False)
sketch4.addGeometry(Part.ArcOfCircle(Part.Circle(Vector(0, 9.2, 0), Vector(0, 0, 1), 5), math.radians(60), math.radians(120)), False)
sketch4.addGeometry(Part.LineSegment(Vector(2.5, 13.6, 0), Vector(10.5, 8.9, 0)), False)
sketch4.addGeometry(Part.ArcOfCircle(Part.Circle(Vector(8, 4.6, 0), Vector(0, 0, 1), 5), math.radians(0), math.radians(60)), False)
sketch4.addGeometry(Part.ArcOfCircle(Part.Circle(Vector(-8.9, -2.9, 0), Vector(0, 0, 1), 2), math.radians(-62), math.radians(0)), False)
sketch4.addGeometry(Part.ArcOfCircle(Part.Circle(Vector(0, 0, 0), Vector(0, 0, 1), 9.2), math.radians(-150), math.radians(-120)), False)
sketch4.addGeometry(Part.ArcOfCircle(Part.Circle(Vector(-2.9, -8.9, 0), Vector(0, 0, 1), 2), math.radians(90), math.radians(152)), False)
sketch4.addGeometry(Part.ArcOfCircle(Part.Circle(Vector(0, 0, 0), Vector(0, 0, 1), 7.5), math.radians(-112), math.radians(-68)), False)
sketch4.addGeometry(Part.ArcOfCircle(Part.Circle(Vector(2.9, -8.9, 0), Vector(0, 0, 1), 2), math.radians(28), math.radians(90)), False)
sketch4.addGeometry(Part.ArcOfCircle(Part.Circle(Vector(0, 0, 0), Vector(0, 0, 1), 9.2), math.radians(-60), math.radians(-30)), False)
sketch4.addGeometry(Part.ArcOfCircle(Part.Circle(Vector(8.9, -2.9, 0), Vector(0, 0, 1), 2), math.radians(-180), math.radians(-118)), False)
sketch4.addGeometry(Part.ArcOfCircle(Part.Circle(Vector(0, 0, 0), Vector(0, 0, 1), 7.5), math.radians(-22), math.radians(22)), False)
sketch4.addGeometry(Part.ArcOfCircle(Part.Circle(Vector(8.9, 2.9, 0), Vector(0, 0, 1), 2), math.radians(118), math.radians(180)), False)
sketch4.addGeometry(Part.ArcOfCircle(Part.Circle(Vector(0, 0, 0), Vector(0, 0, 1), 9.2), math.radians(30), math.radians(60)), False)
sketch4.addGeometry(Part.ArcOfCircle(Part.Circle(Vector(2.9, 8.9, 0), Vector(0, 0, 1), 2), math.radians(-90), math.radians(-28)), False)
sketch4.addGeometry(Part.ArcOfCircle(Part.Circle(Vector(0, 0, 0), Vector(0, 0, 1), 7.5), math.radians(68), math.radians(112)), False)
sketch4.addGeometry(Part.ArcOfCircle(Part.Circle(Vector(-2.9, 8.9, 0), Vector(0, 0, 1), 2), math.radians(-152), math.radians(-90)), False)
sketch4.addGeometry(Part.ArcOfCircle(Part.Circle(Vector(0, 0, 0), Vector(0, 0, 1), 9.2), math.radians(120), math.radians(150)), False)
sketch4.addGeometry(Part.ArcOfCircle(Part.Circle(Vector(-8.9, 2.9, 0), Vector(0, 0, 1), 2), math.radians(0), math.radians(62)), False)
sketch4.addGeometry(Part.ArcOfCircle(Part.Circle(Vector(0, 0, 0), Vector(0, 0, 1), 7.5), math.radians(158), math.radians(202)), False)
sketch4.addConstraint(Sketcher.Constraint("Tangent", 0, 2, 1, 2))
sketch4.addConstraint(Sketcher.Constraint("Tangent", 1, 1, 2, 1))
sketch4.addConstraint(Sketcher.Constraint("Tangent", 2, 2, 3, 2))
sketch4.addConstraint(Sketcher.Constraint("Tangent", 3, 1, 4, 1))
sketch4.addConstraint(Sketcher.Constraint("Tangent", 4, 2, 5, 2))
sketch4.addConstraint(Sketcher.Constraint("Tangent", 5, 1, 6, 1))
sketch4.addConstraint(Sketcher.Constraint("Tangent", 6, 2, 7, 2))
sketch4.addConstraint(Sketcher.Constraint("Tangent", 7, 1, 8, 1))
sketch4.addConstraint(Sketcher.Constraint("Tangent", 8, 2, 9, 2))
sketch4.addConstraint(Sketcher.Constraint("Tangent", 9, 1, 10, 1))
sketch4.addConstraint(Sketcher.Constraint("Tangent", 10, 2, 11, 2))
sketch4.addConstraint(Sketcher.Constraint("Tangent", 11, 1, 0, 1))
sketch4.addConstraint(Sketcher.Constraint("Coincident", 12, 1, 13, 1))
sketch4.addConstraint(Sketcher.Constraint("Coincident", 13, 2, 14, 2))
sketch4.addConstraint(Sketcher.Constraint("Coincident", 14, 1, 15, 1))
sketch4.addConstraint(Sketcher.Constraint("Coincident", 15, 2, 16, 2))
sketch4.addConstraint(Sketcher.Constraint("Coincident", 16, 1, 17, 1))
sketch4.addConstraint(Sketcher.Constraint("Coincident", 17, 2, 18, 2))
sketch4.addConstraint(Sketcher.Constraint("Coincident", 18, 1, 19, 1))
sketch4.addConstraint(Sketcher.Constraint("Coincident", 19, 2, 20, 2))
sketch4.addConstraint(Sketcher.Constraint("Coincident", 20, 1, 21, 1))
sketch4.addConstraint(Sketcher.Constraint("Coincident", 21, 2, 22, 2))
sketch4.addConstraint(Sketcher.Constraint("Coincident", 22, 1, 23, 1))
sketch4.addConstraint(Sketcher.Constraint("Coincident", 23, 2, 24, 2))
sketch4.addConstraint(Sketcher.Constraint("Coincident", 24, 1, 25, 1))
sketch4.addConstraint(Sketcher.Constraint("Coincident", 25, 2, 26, 2))
sketch4.addConstraint(Sketcher.Constraint("Coincident", 26, 1, 27, 1))
sketch4.addConstraint(Sketcher.Constraint("Coincident", 27, 2, 12, 2))
sketch4.addConstraint(Sketcher.Constraint("Vertical", 0))
sketch4.addConstraint(Sketcher.Constraint("Vertical", 6))
sketch4.addConstraint(Sketcher.Constraint("Coincident", 15, 3, -1, 1))
sketch4.addConstraint(Sketcher.Constraint("Coincident", 19, 3, -1, 1))
sketch4.addConstraint(Sketcher.Constraint("Coincident", 23, 3, -1, 1))
sketch4.addConstraint(Sketcher.Constraint("Coincident", 27, 3, -1, 1))
sketch4.addConstraint(Sketcher.Constraint("Coincident", 12, 1, 5, 3))
sketch4.addConstraint(Sketcher.Constraint("Coincident", 17, 2, 1, 3))
sketch4.addConstraint(Sketcher.Constraint("Coincident", 20, 1, 11, 3))
sketch4.addConstraint(Sketcher.Constraint("Coincident", 25, 2, 7, 3))
sketch4.addConstraint(Sketcher.Constraint("Equal", 1, 3))
sketch4.addConstraint(Sketcher.Constraint("Equal", 3, 5))
sketch4.addConstraint(Sketcher.Constraint("Equal", 5, 7))
sketch4.addConstraint(Sketcher.Constraint("Equal", 7, 9))
sketch4.addConstraint(Sketcher.Constraint("Equal", 9, 11))
sketch4.addConstraint(Sketcher.Constraint("Equal", 12, 14))
sketch4.addConstraint(Sketcher.Constraint("Equal", 14, 16))
sketch4.addConstraint(Sketcher.Constraint("Equal", 13, 17))
sketch4.addConstraint(Sketcher.Constraint("Equal", 16, 18))
sketch4.addConstraint(Sketcher.Constraint("Equal", 15, 19))
sketch4.addConstraint(Sketcher.Constraint("Equal", 18, 20))
sketch4.addConstraint(Sketcher.Constraint("Equal", 17, 21))
sketch4.addConstraint(Sketcher.Constraint("Equal", 20, 22))
sketch4.addConstraint(Sketcher.Constraint("Equal", 19, 23))
sketch4.addConstraint(Sketcher.Constraint("Equal", 22, 24))
sketch4.addConstraint(Sketcher.Constraint("Equal", 21, 25))
sketch4.addConstraint(Sketcher.Constraint("Equal", 24, 26))
sketch4.addConstraint(Sketcher.Constraint("Equal", 23, 27))
sketch4.addConstraint(Sketcher.Constraint("Symmetric", 1, 3, 7, 3, -1, 1))
sketch4.addConstraint(Sketcher.Constraint("Symmetric", 3, 3, 9, 3, -1, 1))
sketch4.addConstraint(Sketcher.Constraint("Symmetric", 12, 3, 20, 3, -1, 1))
sketch4.addConstraint(Sketcher.Constraint("Symmetric", 14, 3, 22, 3, -1, 1))
sketch4.addConstraint(Sketcher.Constraint("Symmetric", 16, 3, 24, 3, -1, 1))
sketch4.addConstraint(Sketcher.Constraint("Symmetric", 14, 3, 16, 3, -2))
sketch4.addConstraint(Sketcher.Constraint("Symmetric", 13, 3, 17, 3, -2))
sketch4.addConstraint(Sketcher.Constraint("PointOnObject", 3, 3, -2))
sketch4.addConstraint(Sketcher.Constraint("Horizontal", 12, 3, 18, 3))
sketch4.addConstraint(Sketcher.Constraint("Horizontal", 21, 3, 25, 3))
sketch4.addConstraint(Sketcher.Constraint("Horizontal", 20, 3, 26, 3))
sketch4.addConstraint(Sketcher.Constraint("Vertical", 17, 3, 21, 3))
sketch4.addConstraint(Sketcher.Constraint("Radius", 1, Q("5 mm")))
sketch4.addConstraint(Sketcher.Constraint("Radius", 12, Q("1.999999 mm")))
sketch4.addConstraint(Sketcher.Constraint("Angle", 2, Q("-150.000001 deg")))
sketch4.addConstraint(Sketcher.Constraint("DistanceX", -1, 1, 1, 3, Q("8 mm")))
sketch4.addConstraint(Sketcher.Constraint("DistanceY", 13, 2, -1, 1, Q("8 mm")))
sketch4.addConstraint(Sketcher.Constraint("Radius", 13, Q("9.237588 mm")))
sketch4.addConstraint(Sketcher.Constraint("Radius", 15, Q("7.500005 mm")))
sketch4.addConstraint(Sketcher.Constraint("DistanceY", 1, 3, -1, 1, Q("4.618802 mm")))
sketch4.addConstraint(Sketcher.Constraint("DistanceX", -1, 1, 16, 1, Q("4.618802 mm")))
sketch4.addConstraint(Sketcher.Constraint("DistanceY", 14, 3, 13, 3, Q("8.935501 mm")))
sketch4.addConstraint(Sketcher.Constraint("DistanceX", 17, 3, 18, 3, Q("8.935501 mm")))
sketch4.setExpression("Constraints[68]", "Params.sketch4_radius")
sketch4.setExpression("Constraints[69]", "Params.sketch4_radius2")
pad4 = doc.addObject("PartDesign::Pad", "Pad003")
body.addObject(pad4)
pad4.Profile = sketch4
pad4.setExpression("Length", "Params.pad4_length")
pad4.Reversed = True
doc.recompute()

fillet = doc.addObject("PartDesign::Fillet", "Fillet")
body.addObject(fillet)
fillet.Base = (pad4, edges_at(pad4, [
    (-49, 4.619, 0),
    (-13, 4.619, 0),
    (-13, 4.619, 0),
    (-13, 4.619, 0),
    (-13, -4.619, 0),
    (-13, -4.619, 0),
    (-13, -4.619, 0),
    (-49, -4.619, 0),
]))
fillet.setExpression("Radius", "Params.fillet_radius")
doc.recompute()

chamfer = doc.addObject("PartDesign::Chamfer", "Chamfer")
body.addObject(chamfer)
chamfer.Base = (fillet, edges_at(fillet, [
    (-31.64, -4.619, 5),
    (-31.64, 4.619, 5),
    (-62.869, 0, 5),
    (-31.64, -4.619, -5),
    (-31.64, 4.619, -5),
    (-62.869, 0, -5),
]))
chamfer.setExpression("Size", "Params.chamfer_size")
body2 = doc.addObject("PartDesign::Body", "Body001")

# Sketch on XY plane
sketch5 = doc.addObject("Sketcher::SketchObject", "Sketch004")
body2.addObject(sketch5)
sketch5.AttachmentSupport = (doc.getObject("XY_Plane001"), [""])
sketch5.MapMode = "FlatFace"
sketch5.AttachmentOffset = App.Placement(Vector(0, 0, -2), App.Rotation())
sketch5.addGeometry(Part.LineSegment(Vector(6, -4, 0), Vector(6, 4, 0)), False)
sketch5.addGeometry(Part.ArcOfCircle(Part.Circle(Vector(2.3, 4, 0), Vector(0, 0, 1), 3.7), math.radians(0), math.radians(62)), False)
sketch5.addGeometry(Part.ArcOfCircle(Part.Circle(Vector(-5, -27.5, 0), Vector(0, 0, 1), 36), math.radians(75.49), math.radians(91.2)), False)
sketch5.addGeometry(Part.LineSegment(Vector(-5.8, 8.4, 0), Vector(-5.1, 7.5, 0)), False)
sketch5.addGeometry(Part.ArcOfCircle(Part.Circle(Vector(-3.1, -9.2, 0), Vector(0, 0, 1), 16.8), math.radians(65), math.radians(97)), False)
sketch5.addGeometry(Part.LineSegment(Vector(4, 6, 0), Vector(-4, 6, 0)), False)
sketch5.addGeometry(Part.ArcOfCircle(Part.Circle(Vector(-4, 2.3, 0), Vector(0, 0, 1), 3.7), math.radians(90), math.radians(152)), False)
sketch5.addGeometry(Part.ArcOfCircle(Part.Circle(Vector(27.5, -5, 0), Vector(0, 0, 1), 36), math.radians(165.49), math.radians(181.2)), False)
sketch5.addGeometry(Part.LineSegment(Vector(-8.4, -5.8, 0), Vector(-7.5, -5.1, 0)), False)
sketch5.addGeometry(Part.ArcOfCircle(Part.Circle(Vector(9.2, -3.1, 0), Vector(0, 0, 1), 16.8), math.radians(155), math.radians(187)), False)
sketch5.addGeometry(Part.LineSegment(Vector(-6, 4, 0), Vector(-6, -4, 0)), False)
sketch5.addGeometry(Part.ArcOfCircle(Part.Circle(Vector(-2.3, -4, 0), Vector(0, 0, 1), 3.7), math.radians(-180), math.radians(-118)), False)
sketch5.addGeometry(Part.ArcOfCircle(Part.Circle(Vector(5, 27.5, 0), Vector(0, 0, 1), 36), math.radians(-104.51), math.radians(-88.8)), False)
sketch5.addGeometry(Part.LineSegment(Vector(5.8, -8.4, 0), Vector(5.1, -7.5, 0)), False)
sketch5.addGeometry(Part.ArcOfCircle(Part.Circle(Vector(3.1, 9.2, 0), Vector(0, 0, 1), 16.8), math.radians(-115), math.radians(-83)), False)
sketch5.addGeometry(Part.LineSegment(Vector(-4, -6, 0), Vector(4, -6, 0)), False)
sketch5.addGeometry(Part.ArcOfCircle(Part.Circle(Vector(4, -2.3, 0), Vector(0, 0, 1), 3.7), math.radians(-90), math.radians(-28)), False)
sketch5.addGeometry(Part.ArcOfCircle(Part.Circle(Vector(-27.5, 5, 0), Vector(0, 0, 1), 36), math.radians(-14.51), math.radians(1.2)), False)
sketch5.addGeometry(Part.LineSegment(Vector(8.4, 5.8, 0), Vector(7.5, 5.1, 0)), False)
sketch5.addGeometry(Part.ArcOfCircle(Part.Circle(Vector(-9.2, 3.1, 0), Vector(0, 0, 1), 16.8), math.radians(-25), math.radians(7)), False)
sketch5.addGeometry(Part.ArcOfCircle(Part.Circle(Vector(-1.5, 1.5, 0), Vector(0, 0, 1), 0.5), math.radians(90), math.radians(180)), False)
sketch5.addGeometry(Part.LineSegment(Vector(-1.5, 2, 0), Vector(1.5, 2, 0)), False)
sketch5.addGeometry(Part.ArcOfCircle(Part.Circle(Vector(1.5, 1.5, 0), Vector(0, 0, 1), 0.5), math.radians(0), math.radians(90)), False)
sketch5.addGeometry(Part.LineSegment(Vector(2, 1.5, 0), Vector(2, -1.5, 0)), False)
sketch5.addGeometry(Part.ArcOfCircle(Part.Circle(Vector(1.5, -1.5, 0), Vector(0, 0, 1), 0.5), math.radians(-90), math.radians(0)), False)
sketch5.addGeometry(Part.LineSegment(Vector(1.5, -2, 0), Vector(-1.5, -2, 0)), False)
sketch5.addGeometry(Part.ArcOfCircle(Part.Circle(Vector(-1.5, -1.5, 0), Vector(0, 0, 1), 0.5), math.radians(-180), math.radians(-90)), False)
sketch5.addGeometry(Part.LineSegment(Vector(-2, -1.5, 0), Vector(-2, 1.5, 0)), False)
sketch5.addConstraint(Sketcher.Constraint("Tangent", 0, 2, 1, 1))
sketch5.addConstraint(Sketcher.Constraint("Coincident", 1, 2, 2, 1))
sketch5.addConstraint(Sketcher.Constraint("Coincident", 2, 2, 3, 1))
sketch5.addConstraint(Sketcher.Constraint("Coincident", 3, 2, 4, 2))
sketch5.addConstraint(Sketcher.Constraint("Coincident", 4, 1, 5, 1))
sketch5.addConstraint(Sketcher.Constraint("Tangent", 5, 2, 6, 1))
sketch5.addConstraint(Sketcher.Constraint("Coincident", 6, 2, 7, 1))
sketch5.addConstraint(Sketcher.Constraint("Coincident", 7, 2, 8, 1))
sketch5.addConstraint(Sketcher.Constraint("Coincident", 8, 2, 9, 2))
sketch5.addConstraint(Sketcher.Constraint("Coincident", 9, 1, 10, 1))
sketch5.addConstraint(Sketcher.Constraint("Tangent", 10, 2, 11, 1))
sketch5.addConstraint(Sketcher.Constraint("Coincident", 11, 2, 12, 1))
sketch5.addConstraint(Sketcher.Constraint("Coincident", 12, 2, 13, 1))
sketch5.addConstraint(Sketcher.Constraint("Coincident", 13, 2, 14, 2))
sketch5.addConstraint(Sketcher.Constraint("Coincident", 14, 1, 15, 1))
sketch5.addConstraint(Sketcher.Constraint("Tangent", 15, 2, 16, 1))
sketch5.addConstraint(Sketcher.Constraint("Coincident", 16, 2, 17, 1))
sketch5.addConstraint(Sketcher.Constraint("Coincident", 17, 2, 18, 1))
sketch5.addConstraint(Sketcher.Constraint("Coincident", 18, 2, 19, 2))
sketch5.addConstraint(Sketcher.Constraint("Coincident", 19, 1, 0, 1))
sketch5.addConstraint(Sketcher.Constraint("Coincident", 20, 1, 21, 1))
sketch5.addConstraint(Sketcher.Constraint("Coincident", 21, 2, 22, 2))
sketch5.addConstraint(Sketcher.Constraint("Coincident", 22, 1, 23, 1))
sketch5.addConstraint(Sketcher.Constraint("Coincident", 23, 2, 24, 2))
sketch5.addConstraint(Sketcher.Constraint("Coincident", 24, 1, 25, 1))
sketch5.addConstraint(Sketcher.Constraint("Coincident", 25, 2, 26, 2))
sketch5.addConstraint(Sketcher.Constraint("Coincident", 26, 1, 27, 1))
sketch5.addConstraint(Sketcher.Constraint("Coincident", 27, 2, 20, 2))
sketch5.addConstraint(Sketcher.Constraint("Vertical", 0))
sketch5.addConstraint(Sketcher.Constraint("Horizontal", 5))
sketch5.addConstraint(Sketcher.Constraint("Vertical", 10))
sketch5.addConstraint(Sketcher.Constraint("Horizontal", 15))
sketch5.addConstraint(Sketcher.Constraint("Horizontal", 21))
sketch5.addConstraint(Sketcher.Constraint("Vertical", 23))
sketch5.addConstraint(Sketcher.Constraint("Horizontal", 25))
sketch5.addConstraint(Sketcher.Constraint("Vertical", 27))
sketch5.addConstraint(Sketcher.Constraint("Equal", 1, 6))
sketch5.addConstraint(Sketcher.Constraint("Equal", 2, 7))
sketch5.addConstraint(Sketcher.Constraint("Equal", 4, 9))
sketch5.addConstraint(Sketcher.Constraint("Equal", 6, 11))
sketch5.addConstraint(Sketcher.Constraint("Equal", 7, 12))
sketch5.addConstraint(Sketcher.Constraint("Equal", 9, 14))
sketch5.addConstraint(Sketcher.Constraint("Equal", 11, 16))
sketch5.addConstraint(Sketcher.Constraint("Equal", 12, 17))
sketch5.addConstraint(Sketcher.Constraint("Equal", 14, 19))
sketch5.addConstraint(Sketcher.Constraint("Equal", 20, 22))
sketch5.addConstraint(Sketcher.Constraint("Equal", 22, 24))
sketch5.addConstraint(Sketcher.Constraint("Equal", 24, 26))
sketch5.addConstraint(Sketcher.Constraint("Symmetric", 1, 3, 11, 3, -1, 1))
sketch5.addConstraint(Sketcher.Constraint("Symmetric", 2, 3, 12, 3, -1, 1))
sketch5.addConstraint(Sketcher.Constraint("Symmetric", 4, 3, 14, 3, -1, 1))
sketch5.addConstraint(Sketcher.Constraint("Symmetric", 6, 3, 16, 3, -1, 1))
sketch5.addConstraint(Sketcher.Constraint("Symmetric", 7, 3, 17, 3, -1, 1))
sketch5.addConstraint(Sketcher.Constraint("Symmetric", 9, 3, 19, 3, -1, 1))
sketch5.addConstraint(Sketcher.Constraint("Symmetric", 20, 3, 24, 3, -1, 1))
sketch5.addConstraint(Sketcher.Constraint("Perpendicular", 3, 8))
sketch5.addConstraint(Sketcher.Constraint("Perpendicular", 8, 13))
sketch5.addConstraint(Sketcher.Constraint("Perpendicular", 13, 18))
sketch5.addConstraint(Sketcher.Constraint("Horizontal", 0, 2, 6, 2))
sketch5.addConstraint(Sketcher.Constraint("Horizontal", 6, 2, 9, 1))
sketch5.addConstraint(Sketcher.Constraint("Horizontal", 20, 3, 22, 1))
sketch5.addConstraint(Sketcher.Constraint("Horizontal", 26, 3, 23, 2))
sketch5.addConstraint(Sketcher.Constraint("Horizontal", 23, 2, 26, 1))
sketch5.addConstraint(Sketcher.Constraint("Horizontal", 22, 1, 27, 2))
sketch5.addConstraint(Sketcher.Constraint("Vertical", 16, 3, 1, 2))
sketch5.addConstraint(Sketcher.Constraint("Vertical", 1, 2, 4, 1))
sketch5.addConstraint(Sketcher.Constraint("Vertical", 26, 3, 20, 1))
sketch5.addConstraint(Sketcher.Constraint("Vertical", 24, 3, 21, 2))
sketch5.addConstraint(Sketcher.Constraint("Vertical", 21, 2, 24, 1))
sketch5.addConstraint(Sketcher.Constraint("Vertical", 20, 1, 25, 2))
sketch5.addConstraint(Sketcher.Constraint("Equal", 15, 0))
sketch5.addConstraint(Sketcher.Constraint("Equal", 25, 23))
sketch5.addConstraint(Sketcher.Constraint("Equal", 3, 8))
sketch5.addConstraint(Sketcher.Constraint("Equal", 8, 13))
sketch5.addConstraint(Sketcher.Constraint("Equal", 13, 18))
sketch5.addConstraint(Sketcher.Constraint("Radius", 20, Q("0.500001 mm")))
sketch5.addConstraint(Sketcher.Constraint("DistanceX", 5, 2, 5, 1, Q("8 mm")))
sketch5.addConstraint(Sketcher.Constraint("DistanceX", 21, 1, 21, 2, Q("3 mm")))
sketch5.addConstraint(Sketcher.Constraint("DistanceX", -1, 1, 0, 2, Q("6 mm")))
sketch5.addConstraint(Sketcher.Constraint("DistanceY", -1, 1, 4, 1, Q("6 mm")))
sketch5.addConstraint(Sketcher.Constraint("Radius", 1, Q("3.73095 mm")))
sketch5.addConstraint(Sketcher.Constraint("Radius", 2, Q("35.954357 mm")))
sketch5.addConstraint(Sketcher.Constraint("Radius", 4, Q("16.774796 mm")))
sketch5.addConstraint(Sketcher.Constraint("DistanceX", 1, 3, 7, 3, Q("25.233302 mm")))
sketch5.addConstraint(Sketcher.Constraint("DistanceY", 6, 3, 12, 3, Q("25.233302 mm")))
sketch5.addConstraint(Sketcher.Constraint("DistanceX", 6, 2, 3, 2, Q("2.217702 mm")))
sketch5.addConstraint(Sketcher.Constraint("DistanceY", 11, 2, 8, 2, Q("2.217702 mm")))
sketch5.addConstraint(Sketcher.Constraint("DistanceX", 2, 2, -1, 1, Q("5.76237 mm")))
sketch5.addConstraint(Sketcher.Constraint("DistanceX", 2, 3, 4, 3, Q("1.882482 mm")))
sketch5.setExpression("Constraints[75]", "Params.sketch5_radius")
sketch5.setExpression("Constraints[76]", "Params.sketch5_width")
sketch5.setExpression("Constraints[77]", "Params.sketch5_width2")
pad5 = doc.addObject("PartDesign::Pad", "Pad004")
body2.addObject(pad5)
pad5.Profile = sketch5
pad5.setExpression("Length", "Params.pad5_length")

doc.recompute()
